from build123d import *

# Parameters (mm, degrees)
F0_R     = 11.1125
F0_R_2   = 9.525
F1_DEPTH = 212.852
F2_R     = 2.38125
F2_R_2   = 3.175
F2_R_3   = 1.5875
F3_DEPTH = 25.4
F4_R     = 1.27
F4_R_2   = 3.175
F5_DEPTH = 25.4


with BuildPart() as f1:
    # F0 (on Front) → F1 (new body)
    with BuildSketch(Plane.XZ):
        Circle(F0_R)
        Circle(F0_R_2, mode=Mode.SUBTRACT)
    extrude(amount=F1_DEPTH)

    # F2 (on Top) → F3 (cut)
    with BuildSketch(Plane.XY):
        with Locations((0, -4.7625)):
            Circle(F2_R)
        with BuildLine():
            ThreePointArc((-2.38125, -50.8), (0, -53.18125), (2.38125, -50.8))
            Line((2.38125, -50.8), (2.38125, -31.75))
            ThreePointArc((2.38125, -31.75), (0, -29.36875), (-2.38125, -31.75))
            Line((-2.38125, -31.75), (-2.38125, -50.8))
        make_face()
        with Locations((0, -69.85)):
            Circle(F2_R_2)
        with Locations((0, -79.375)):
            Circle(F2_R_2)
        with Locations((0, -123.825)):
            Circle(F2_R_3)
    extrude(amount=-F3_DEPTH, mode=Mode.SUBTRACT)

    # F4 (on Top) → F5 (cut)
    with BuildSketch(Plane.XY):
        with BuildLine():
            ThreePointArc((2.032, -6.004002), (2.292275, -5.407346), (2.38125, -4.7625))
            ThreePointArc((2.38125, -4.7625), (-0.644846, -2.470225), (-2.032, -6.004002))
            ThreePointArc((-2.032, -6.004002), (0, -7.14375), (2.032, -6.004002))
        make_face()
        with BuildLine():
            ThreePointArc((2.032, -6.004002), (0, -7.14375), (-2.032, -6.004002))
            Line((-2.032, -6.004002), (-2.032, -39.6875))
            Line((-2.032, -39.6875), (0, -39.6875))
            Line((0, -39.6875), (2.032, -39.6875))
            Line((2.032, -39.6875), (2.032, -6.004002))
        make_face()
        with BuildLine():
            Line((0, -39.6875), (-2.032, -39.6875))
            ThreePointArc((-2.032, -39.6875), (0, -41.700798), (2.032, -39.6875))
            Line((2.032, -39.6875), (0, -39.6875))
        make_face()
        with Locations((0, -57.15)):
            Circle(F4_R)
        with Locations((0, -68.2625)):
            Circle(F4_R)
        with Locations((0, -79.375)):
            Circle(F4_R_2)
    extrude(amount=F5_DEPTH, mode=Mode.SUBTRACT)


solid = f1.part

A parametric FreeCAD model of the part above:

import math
import FreeCAD as App
import Part
import Sketcher

V = App.Vector
Q = App.Units.Quantity

doc = App.newDocument("Part")
body = doc.addObject("PartDesign::Body", "Body")

sketch1 = body.newObject("Sketcher::SketchObject", "Sketch")
sketch1.AttachmentSupport = (doc.getObject("XZ_Plane"), [""])
sketch1.MapMode = "FlatFace"
sketch1.addGeometry(Part.Circle(V(0, 0, 0), V(0, 0, 1), 11), False)
sketch1.addGeometry(Part.Circle(V(0, 0, 0), V(0, 0, 1), 10), False)
sketch1.addConstraint(Sketcher.Constraint("Coincident", 0, 3, -1, 1))
sketch1.addConstraint(Sketcher.Constraint("Coincident", 1, 3, -1, 1))
sketch1.addConstraint(Sketcher.Constraint("Diameter", 1, Q("0.75 in")))
sketch1.addConstraint(Sketcher.Constraint("Diameter", 0, Q("0.875 in")))
pad1 = body.newObject("PartDesign::Pad", "Pad")
pad1.Profile = sketch1
pad1.Length = Q("8.38 in")

sketch2 = body.newObject("Sketcher::SketchObject", "Sketch001")
sketch2.AttachmentSupport = (doc.getObject("XY_Plane"), [""])
sketch2.MapMode = "FlatFace"
sketch2.addGeometry(Part.Circle(V(0, -4.8, 0), V(0, 0, 1), 2.4), False)
sketch2.addGeometry(Part.ArcOfCircle(Part.Circle(V(0, -50.8, 0), V(0, 0, 1), 2.4), math.radians(180), math.radians(360)), False)
sketch2.addGeometry(Part.LineSegment(V(2.4, -50.8, 0), V(2.4, -31.8, 0)), False)
sketch2.addGeometry(Part.ArcOfCircle(Part.Circle(V(0, -31.8, 0), V(0, 0, 1), 2.4), math.radians(0), math.radians(180)), False)
sketch2.addGeometry(Part.LineSegment(V(-2.4, -31.8, 0), V(-2.4, -50.8, 0)), False)
sketch2.addGeometry(Part.Circle(V(0, -69.8, 0), V(0, 0, 1), 3.2), False)
sketch2.addGeometry(Part.Circle(V(0, -79.4, 0), V(0, 0, 1), 3.2), False)
sketch2.addGeometry(Part.Circle(V(0, -123.8, 0), V(0, 0, 1), 1.6), False)
sketch2.addConstraint(Sketcher.Constraint("Tangent", 1, 2, 2, 1))
sketch2.addConstraint(Sketcher.Constraint("Tangent", 2, 2, 3, 1))
sketch2.addConstraint(Sketcher.Constraint("Tangent", 3, 2, 4, 1))
sketch2.addConstraint(Sketcher.Constraint("Tangent", 4, 2, 1, 1))
sketch2.addConstraint(Sketcher.Constraint("Vertical", 2))
sketch2.addConstraint(Sketcher.Constraint("Vertical", 4))
sketch2.addConstraint(Sketcher.Constraint("Equal", 0, 1))
sketch2.addConstraint(Sketcher.Constraint("Equal", 5, 6))
sketch2.addConstraint(Sketcher.Constraint("PointOnObject", 0, 3, -2))
sketch2.addConstraint(Sketcher.Constraint("PointOnObject", 1, 3, -2))
sketch2.addConstraint(Sketcher.Constraint("PointOnObject", 5, 3, -2))
sketch2.addConstraint(Sketcher.Constraint("PointOnObject", 6, 3, -2))
sketch2.addConstraint(Sketcher.Constraint("PointOnObject", 7, 3, -2))
sketch2.addConstraint(Sketcher.Constraint("Diameter", 5, Q("0.25 in")))
sketch2.addConstraint(Sketcher.Constraint("Diameter", 0, Q("0.1875 in")))
sketch2.addConstraint(Sketcher.Constraint("Diameter", 7, Q("0.125 in")))
sketch2.addConstraint(Sketcher.Constraint("DistanceY", 1, 3, -1, 1, Q("2 in")))
sketch2.addConstraint(Sketcher.Constraint("DistanceY", 2, 1, 2, 2, Q("0.75 in")))
sketch2.addConstraint(Sketcher.Constraint("DistanceY", 5, 3, 3, 3, Q("1.5 in")))
sketch2.addConstraint(Sketcher.Constraint("DistanceY", 7, 3, 6, 3, Q("1.75 in")))
sketch2.addConstraint(Sketcher.Constraint("DistanceY", 0, 3, -1, 1, Q("0.1875 in")))
sketch2.addConstraint(Sketcher.Constraint("DistanceY", 6, 3, -1, 1, Q("3.125 in")))
pocket1 = body.newObject("PartDesign::Pocket", "Pocket")
pocket1.Profile = sketch2
pocket1.Length = Q("1 in")

sketch3 = body.newObject("Sketcher::SketchObject", "Sketch002")
sketch3.AttachmentSupport = (doc.getObject("XY_Plane"), [""])
sketch3.MapMode = "FlatFace"
sketch3.addGeometry(Part.ArcOfCircle(Part.Circle(V(-0.000002, -4.762499, 0), V(0, 0, 1), 2.381252), math.radians(-31.423894), math.radians(-0.000016)), False)
sketch3.addGeometry(Part.ArcOfCircle(Part.Circle(V(0, -4.7625, 0), V(0, 0, 1), 2.38125), math.radians(0.000001), math.radians(211.423902)), False)
sketch3.addGeometry(Part.LineSegment(V(-2.032, -6.004002, 0), V(-2.032, -39.6875, 0)), False)
sketch3.addGeometry(Part.ArcOfCircle(Part.Circle(V(0, -39.668711, 0), V(0, 0, 1), 2.032087), math.radians(-179.47023), math.radians(-0.52977)), False)
sketch3.addGeometry(Part.LineSegment(V(2.032, -39.6875, 0), V(2.032, -6.004002, 0)), False)
sketch3.addGeometry(Part.Circle(V(0, -57.15, 0), V(0, 0, 1), 1.27), False)
sketch3.addGeometry(Part.Circle(V(0, -68.2625, 0), V(0, 0, 1), 1.27), False)
sketch3.addGeometry(Part.Circle(V(0, -79.375, 0), V(0, 0, 1), 3.175), False)
sketch3.addConstraint(Sketcher.Constraint("Tangent", 0, 2, 1, 1))
sketch3.addConstraint(Sketcher.Constraint("Coincident", 1, 2, 2, 1))
sketch3.addConstraint(Sketcher.Constraint("Coincident", 2, 2, 3, 1))
sketch3.addConstraint(Sketcher.Constraint("Coincident", 3, 2, 4, 1))
sketch3.addConstraint(Sketcher.Constraint("Coincident", 4, 2, 0, 1))
sketch3.addConstraint(Sketcher.Constraint("Vertical", 2))
sketch3.addConstraint(Sketcher.Constraint("Vertical", 4))
sketch3.addConstraint(Sketcher.Constraint("Equal", 0, 1))
sketch3.addConstraint(Sketcher.Constraint("Equal", 5, 6))
sketch3.addConstraint(Sketcher.Constraint("Symmetric", 2, 2, 3, 2, -2))
sketch3.addConstraint(Sketcher.Constraint("PointOnObject", 0, 3, -2))
sketch3.addConstraint(Sketcher.Constraint("PointOnObject", 5, 3, -2))
sketch3.addConstraint(Sketcher.Constraint("PointOnObject", 6, 3, -2))
sketch3.addConstraint(Sketcher.Constraint("PointOnObject", 7, 3, -2))
sketch3.addConstraint(Sketcher.Constraint("Horizontal", 1, 3, 0, 2))
sketch3.addConstraint(Sketcher.Constraint("Diameter", 5, Q("0.1 in")))
sketch3.addConstraint(Sketcher.Constraint("Diameter", 7, Q("0.25 in")))
sketch3.addConstraint(Sketcher.Constraint("Radius", 0, Q("0.0937501 in")))
sketch3.addConstraint(Sketcher.Constraint("DistanceY", 6, 3, 1, 3, Q("2.5 in")))
sketch3.addConstraint(Sketcher.Constraint("DistanceY", 5, 3, -1, 1, Q("2.25 in")))
sketch3.addConstraint(Sketcher.Constraint("DistanceX", 1, 2, -1, 1, Q("0.08 in")))
sketch3.addConstraint(Sketcher.Constraint("DistanceY", 0, 3, -1, 1, Q("0.1875 in")))
sketch3.addConstraint(Sketcher.Constraint("DistanceY", 7, 3, -1, 1, Q("3.125 in")))
sketch3.addConstraint(Sketcher.Constraint("DistanceY", 2, 2, -1, 1, Q("1.5625 in")))
sketch3.addConstraint(Sketcher.Constraint("Radius", 3, 2.032087))
pocket2 = body.newObject("PartDesign::Pocket", "Pocket001")
pocket2.Profile = sketch3
pocket2.Length = Q("1 in")
pocket2.Reversed = True

doc.recompute()
